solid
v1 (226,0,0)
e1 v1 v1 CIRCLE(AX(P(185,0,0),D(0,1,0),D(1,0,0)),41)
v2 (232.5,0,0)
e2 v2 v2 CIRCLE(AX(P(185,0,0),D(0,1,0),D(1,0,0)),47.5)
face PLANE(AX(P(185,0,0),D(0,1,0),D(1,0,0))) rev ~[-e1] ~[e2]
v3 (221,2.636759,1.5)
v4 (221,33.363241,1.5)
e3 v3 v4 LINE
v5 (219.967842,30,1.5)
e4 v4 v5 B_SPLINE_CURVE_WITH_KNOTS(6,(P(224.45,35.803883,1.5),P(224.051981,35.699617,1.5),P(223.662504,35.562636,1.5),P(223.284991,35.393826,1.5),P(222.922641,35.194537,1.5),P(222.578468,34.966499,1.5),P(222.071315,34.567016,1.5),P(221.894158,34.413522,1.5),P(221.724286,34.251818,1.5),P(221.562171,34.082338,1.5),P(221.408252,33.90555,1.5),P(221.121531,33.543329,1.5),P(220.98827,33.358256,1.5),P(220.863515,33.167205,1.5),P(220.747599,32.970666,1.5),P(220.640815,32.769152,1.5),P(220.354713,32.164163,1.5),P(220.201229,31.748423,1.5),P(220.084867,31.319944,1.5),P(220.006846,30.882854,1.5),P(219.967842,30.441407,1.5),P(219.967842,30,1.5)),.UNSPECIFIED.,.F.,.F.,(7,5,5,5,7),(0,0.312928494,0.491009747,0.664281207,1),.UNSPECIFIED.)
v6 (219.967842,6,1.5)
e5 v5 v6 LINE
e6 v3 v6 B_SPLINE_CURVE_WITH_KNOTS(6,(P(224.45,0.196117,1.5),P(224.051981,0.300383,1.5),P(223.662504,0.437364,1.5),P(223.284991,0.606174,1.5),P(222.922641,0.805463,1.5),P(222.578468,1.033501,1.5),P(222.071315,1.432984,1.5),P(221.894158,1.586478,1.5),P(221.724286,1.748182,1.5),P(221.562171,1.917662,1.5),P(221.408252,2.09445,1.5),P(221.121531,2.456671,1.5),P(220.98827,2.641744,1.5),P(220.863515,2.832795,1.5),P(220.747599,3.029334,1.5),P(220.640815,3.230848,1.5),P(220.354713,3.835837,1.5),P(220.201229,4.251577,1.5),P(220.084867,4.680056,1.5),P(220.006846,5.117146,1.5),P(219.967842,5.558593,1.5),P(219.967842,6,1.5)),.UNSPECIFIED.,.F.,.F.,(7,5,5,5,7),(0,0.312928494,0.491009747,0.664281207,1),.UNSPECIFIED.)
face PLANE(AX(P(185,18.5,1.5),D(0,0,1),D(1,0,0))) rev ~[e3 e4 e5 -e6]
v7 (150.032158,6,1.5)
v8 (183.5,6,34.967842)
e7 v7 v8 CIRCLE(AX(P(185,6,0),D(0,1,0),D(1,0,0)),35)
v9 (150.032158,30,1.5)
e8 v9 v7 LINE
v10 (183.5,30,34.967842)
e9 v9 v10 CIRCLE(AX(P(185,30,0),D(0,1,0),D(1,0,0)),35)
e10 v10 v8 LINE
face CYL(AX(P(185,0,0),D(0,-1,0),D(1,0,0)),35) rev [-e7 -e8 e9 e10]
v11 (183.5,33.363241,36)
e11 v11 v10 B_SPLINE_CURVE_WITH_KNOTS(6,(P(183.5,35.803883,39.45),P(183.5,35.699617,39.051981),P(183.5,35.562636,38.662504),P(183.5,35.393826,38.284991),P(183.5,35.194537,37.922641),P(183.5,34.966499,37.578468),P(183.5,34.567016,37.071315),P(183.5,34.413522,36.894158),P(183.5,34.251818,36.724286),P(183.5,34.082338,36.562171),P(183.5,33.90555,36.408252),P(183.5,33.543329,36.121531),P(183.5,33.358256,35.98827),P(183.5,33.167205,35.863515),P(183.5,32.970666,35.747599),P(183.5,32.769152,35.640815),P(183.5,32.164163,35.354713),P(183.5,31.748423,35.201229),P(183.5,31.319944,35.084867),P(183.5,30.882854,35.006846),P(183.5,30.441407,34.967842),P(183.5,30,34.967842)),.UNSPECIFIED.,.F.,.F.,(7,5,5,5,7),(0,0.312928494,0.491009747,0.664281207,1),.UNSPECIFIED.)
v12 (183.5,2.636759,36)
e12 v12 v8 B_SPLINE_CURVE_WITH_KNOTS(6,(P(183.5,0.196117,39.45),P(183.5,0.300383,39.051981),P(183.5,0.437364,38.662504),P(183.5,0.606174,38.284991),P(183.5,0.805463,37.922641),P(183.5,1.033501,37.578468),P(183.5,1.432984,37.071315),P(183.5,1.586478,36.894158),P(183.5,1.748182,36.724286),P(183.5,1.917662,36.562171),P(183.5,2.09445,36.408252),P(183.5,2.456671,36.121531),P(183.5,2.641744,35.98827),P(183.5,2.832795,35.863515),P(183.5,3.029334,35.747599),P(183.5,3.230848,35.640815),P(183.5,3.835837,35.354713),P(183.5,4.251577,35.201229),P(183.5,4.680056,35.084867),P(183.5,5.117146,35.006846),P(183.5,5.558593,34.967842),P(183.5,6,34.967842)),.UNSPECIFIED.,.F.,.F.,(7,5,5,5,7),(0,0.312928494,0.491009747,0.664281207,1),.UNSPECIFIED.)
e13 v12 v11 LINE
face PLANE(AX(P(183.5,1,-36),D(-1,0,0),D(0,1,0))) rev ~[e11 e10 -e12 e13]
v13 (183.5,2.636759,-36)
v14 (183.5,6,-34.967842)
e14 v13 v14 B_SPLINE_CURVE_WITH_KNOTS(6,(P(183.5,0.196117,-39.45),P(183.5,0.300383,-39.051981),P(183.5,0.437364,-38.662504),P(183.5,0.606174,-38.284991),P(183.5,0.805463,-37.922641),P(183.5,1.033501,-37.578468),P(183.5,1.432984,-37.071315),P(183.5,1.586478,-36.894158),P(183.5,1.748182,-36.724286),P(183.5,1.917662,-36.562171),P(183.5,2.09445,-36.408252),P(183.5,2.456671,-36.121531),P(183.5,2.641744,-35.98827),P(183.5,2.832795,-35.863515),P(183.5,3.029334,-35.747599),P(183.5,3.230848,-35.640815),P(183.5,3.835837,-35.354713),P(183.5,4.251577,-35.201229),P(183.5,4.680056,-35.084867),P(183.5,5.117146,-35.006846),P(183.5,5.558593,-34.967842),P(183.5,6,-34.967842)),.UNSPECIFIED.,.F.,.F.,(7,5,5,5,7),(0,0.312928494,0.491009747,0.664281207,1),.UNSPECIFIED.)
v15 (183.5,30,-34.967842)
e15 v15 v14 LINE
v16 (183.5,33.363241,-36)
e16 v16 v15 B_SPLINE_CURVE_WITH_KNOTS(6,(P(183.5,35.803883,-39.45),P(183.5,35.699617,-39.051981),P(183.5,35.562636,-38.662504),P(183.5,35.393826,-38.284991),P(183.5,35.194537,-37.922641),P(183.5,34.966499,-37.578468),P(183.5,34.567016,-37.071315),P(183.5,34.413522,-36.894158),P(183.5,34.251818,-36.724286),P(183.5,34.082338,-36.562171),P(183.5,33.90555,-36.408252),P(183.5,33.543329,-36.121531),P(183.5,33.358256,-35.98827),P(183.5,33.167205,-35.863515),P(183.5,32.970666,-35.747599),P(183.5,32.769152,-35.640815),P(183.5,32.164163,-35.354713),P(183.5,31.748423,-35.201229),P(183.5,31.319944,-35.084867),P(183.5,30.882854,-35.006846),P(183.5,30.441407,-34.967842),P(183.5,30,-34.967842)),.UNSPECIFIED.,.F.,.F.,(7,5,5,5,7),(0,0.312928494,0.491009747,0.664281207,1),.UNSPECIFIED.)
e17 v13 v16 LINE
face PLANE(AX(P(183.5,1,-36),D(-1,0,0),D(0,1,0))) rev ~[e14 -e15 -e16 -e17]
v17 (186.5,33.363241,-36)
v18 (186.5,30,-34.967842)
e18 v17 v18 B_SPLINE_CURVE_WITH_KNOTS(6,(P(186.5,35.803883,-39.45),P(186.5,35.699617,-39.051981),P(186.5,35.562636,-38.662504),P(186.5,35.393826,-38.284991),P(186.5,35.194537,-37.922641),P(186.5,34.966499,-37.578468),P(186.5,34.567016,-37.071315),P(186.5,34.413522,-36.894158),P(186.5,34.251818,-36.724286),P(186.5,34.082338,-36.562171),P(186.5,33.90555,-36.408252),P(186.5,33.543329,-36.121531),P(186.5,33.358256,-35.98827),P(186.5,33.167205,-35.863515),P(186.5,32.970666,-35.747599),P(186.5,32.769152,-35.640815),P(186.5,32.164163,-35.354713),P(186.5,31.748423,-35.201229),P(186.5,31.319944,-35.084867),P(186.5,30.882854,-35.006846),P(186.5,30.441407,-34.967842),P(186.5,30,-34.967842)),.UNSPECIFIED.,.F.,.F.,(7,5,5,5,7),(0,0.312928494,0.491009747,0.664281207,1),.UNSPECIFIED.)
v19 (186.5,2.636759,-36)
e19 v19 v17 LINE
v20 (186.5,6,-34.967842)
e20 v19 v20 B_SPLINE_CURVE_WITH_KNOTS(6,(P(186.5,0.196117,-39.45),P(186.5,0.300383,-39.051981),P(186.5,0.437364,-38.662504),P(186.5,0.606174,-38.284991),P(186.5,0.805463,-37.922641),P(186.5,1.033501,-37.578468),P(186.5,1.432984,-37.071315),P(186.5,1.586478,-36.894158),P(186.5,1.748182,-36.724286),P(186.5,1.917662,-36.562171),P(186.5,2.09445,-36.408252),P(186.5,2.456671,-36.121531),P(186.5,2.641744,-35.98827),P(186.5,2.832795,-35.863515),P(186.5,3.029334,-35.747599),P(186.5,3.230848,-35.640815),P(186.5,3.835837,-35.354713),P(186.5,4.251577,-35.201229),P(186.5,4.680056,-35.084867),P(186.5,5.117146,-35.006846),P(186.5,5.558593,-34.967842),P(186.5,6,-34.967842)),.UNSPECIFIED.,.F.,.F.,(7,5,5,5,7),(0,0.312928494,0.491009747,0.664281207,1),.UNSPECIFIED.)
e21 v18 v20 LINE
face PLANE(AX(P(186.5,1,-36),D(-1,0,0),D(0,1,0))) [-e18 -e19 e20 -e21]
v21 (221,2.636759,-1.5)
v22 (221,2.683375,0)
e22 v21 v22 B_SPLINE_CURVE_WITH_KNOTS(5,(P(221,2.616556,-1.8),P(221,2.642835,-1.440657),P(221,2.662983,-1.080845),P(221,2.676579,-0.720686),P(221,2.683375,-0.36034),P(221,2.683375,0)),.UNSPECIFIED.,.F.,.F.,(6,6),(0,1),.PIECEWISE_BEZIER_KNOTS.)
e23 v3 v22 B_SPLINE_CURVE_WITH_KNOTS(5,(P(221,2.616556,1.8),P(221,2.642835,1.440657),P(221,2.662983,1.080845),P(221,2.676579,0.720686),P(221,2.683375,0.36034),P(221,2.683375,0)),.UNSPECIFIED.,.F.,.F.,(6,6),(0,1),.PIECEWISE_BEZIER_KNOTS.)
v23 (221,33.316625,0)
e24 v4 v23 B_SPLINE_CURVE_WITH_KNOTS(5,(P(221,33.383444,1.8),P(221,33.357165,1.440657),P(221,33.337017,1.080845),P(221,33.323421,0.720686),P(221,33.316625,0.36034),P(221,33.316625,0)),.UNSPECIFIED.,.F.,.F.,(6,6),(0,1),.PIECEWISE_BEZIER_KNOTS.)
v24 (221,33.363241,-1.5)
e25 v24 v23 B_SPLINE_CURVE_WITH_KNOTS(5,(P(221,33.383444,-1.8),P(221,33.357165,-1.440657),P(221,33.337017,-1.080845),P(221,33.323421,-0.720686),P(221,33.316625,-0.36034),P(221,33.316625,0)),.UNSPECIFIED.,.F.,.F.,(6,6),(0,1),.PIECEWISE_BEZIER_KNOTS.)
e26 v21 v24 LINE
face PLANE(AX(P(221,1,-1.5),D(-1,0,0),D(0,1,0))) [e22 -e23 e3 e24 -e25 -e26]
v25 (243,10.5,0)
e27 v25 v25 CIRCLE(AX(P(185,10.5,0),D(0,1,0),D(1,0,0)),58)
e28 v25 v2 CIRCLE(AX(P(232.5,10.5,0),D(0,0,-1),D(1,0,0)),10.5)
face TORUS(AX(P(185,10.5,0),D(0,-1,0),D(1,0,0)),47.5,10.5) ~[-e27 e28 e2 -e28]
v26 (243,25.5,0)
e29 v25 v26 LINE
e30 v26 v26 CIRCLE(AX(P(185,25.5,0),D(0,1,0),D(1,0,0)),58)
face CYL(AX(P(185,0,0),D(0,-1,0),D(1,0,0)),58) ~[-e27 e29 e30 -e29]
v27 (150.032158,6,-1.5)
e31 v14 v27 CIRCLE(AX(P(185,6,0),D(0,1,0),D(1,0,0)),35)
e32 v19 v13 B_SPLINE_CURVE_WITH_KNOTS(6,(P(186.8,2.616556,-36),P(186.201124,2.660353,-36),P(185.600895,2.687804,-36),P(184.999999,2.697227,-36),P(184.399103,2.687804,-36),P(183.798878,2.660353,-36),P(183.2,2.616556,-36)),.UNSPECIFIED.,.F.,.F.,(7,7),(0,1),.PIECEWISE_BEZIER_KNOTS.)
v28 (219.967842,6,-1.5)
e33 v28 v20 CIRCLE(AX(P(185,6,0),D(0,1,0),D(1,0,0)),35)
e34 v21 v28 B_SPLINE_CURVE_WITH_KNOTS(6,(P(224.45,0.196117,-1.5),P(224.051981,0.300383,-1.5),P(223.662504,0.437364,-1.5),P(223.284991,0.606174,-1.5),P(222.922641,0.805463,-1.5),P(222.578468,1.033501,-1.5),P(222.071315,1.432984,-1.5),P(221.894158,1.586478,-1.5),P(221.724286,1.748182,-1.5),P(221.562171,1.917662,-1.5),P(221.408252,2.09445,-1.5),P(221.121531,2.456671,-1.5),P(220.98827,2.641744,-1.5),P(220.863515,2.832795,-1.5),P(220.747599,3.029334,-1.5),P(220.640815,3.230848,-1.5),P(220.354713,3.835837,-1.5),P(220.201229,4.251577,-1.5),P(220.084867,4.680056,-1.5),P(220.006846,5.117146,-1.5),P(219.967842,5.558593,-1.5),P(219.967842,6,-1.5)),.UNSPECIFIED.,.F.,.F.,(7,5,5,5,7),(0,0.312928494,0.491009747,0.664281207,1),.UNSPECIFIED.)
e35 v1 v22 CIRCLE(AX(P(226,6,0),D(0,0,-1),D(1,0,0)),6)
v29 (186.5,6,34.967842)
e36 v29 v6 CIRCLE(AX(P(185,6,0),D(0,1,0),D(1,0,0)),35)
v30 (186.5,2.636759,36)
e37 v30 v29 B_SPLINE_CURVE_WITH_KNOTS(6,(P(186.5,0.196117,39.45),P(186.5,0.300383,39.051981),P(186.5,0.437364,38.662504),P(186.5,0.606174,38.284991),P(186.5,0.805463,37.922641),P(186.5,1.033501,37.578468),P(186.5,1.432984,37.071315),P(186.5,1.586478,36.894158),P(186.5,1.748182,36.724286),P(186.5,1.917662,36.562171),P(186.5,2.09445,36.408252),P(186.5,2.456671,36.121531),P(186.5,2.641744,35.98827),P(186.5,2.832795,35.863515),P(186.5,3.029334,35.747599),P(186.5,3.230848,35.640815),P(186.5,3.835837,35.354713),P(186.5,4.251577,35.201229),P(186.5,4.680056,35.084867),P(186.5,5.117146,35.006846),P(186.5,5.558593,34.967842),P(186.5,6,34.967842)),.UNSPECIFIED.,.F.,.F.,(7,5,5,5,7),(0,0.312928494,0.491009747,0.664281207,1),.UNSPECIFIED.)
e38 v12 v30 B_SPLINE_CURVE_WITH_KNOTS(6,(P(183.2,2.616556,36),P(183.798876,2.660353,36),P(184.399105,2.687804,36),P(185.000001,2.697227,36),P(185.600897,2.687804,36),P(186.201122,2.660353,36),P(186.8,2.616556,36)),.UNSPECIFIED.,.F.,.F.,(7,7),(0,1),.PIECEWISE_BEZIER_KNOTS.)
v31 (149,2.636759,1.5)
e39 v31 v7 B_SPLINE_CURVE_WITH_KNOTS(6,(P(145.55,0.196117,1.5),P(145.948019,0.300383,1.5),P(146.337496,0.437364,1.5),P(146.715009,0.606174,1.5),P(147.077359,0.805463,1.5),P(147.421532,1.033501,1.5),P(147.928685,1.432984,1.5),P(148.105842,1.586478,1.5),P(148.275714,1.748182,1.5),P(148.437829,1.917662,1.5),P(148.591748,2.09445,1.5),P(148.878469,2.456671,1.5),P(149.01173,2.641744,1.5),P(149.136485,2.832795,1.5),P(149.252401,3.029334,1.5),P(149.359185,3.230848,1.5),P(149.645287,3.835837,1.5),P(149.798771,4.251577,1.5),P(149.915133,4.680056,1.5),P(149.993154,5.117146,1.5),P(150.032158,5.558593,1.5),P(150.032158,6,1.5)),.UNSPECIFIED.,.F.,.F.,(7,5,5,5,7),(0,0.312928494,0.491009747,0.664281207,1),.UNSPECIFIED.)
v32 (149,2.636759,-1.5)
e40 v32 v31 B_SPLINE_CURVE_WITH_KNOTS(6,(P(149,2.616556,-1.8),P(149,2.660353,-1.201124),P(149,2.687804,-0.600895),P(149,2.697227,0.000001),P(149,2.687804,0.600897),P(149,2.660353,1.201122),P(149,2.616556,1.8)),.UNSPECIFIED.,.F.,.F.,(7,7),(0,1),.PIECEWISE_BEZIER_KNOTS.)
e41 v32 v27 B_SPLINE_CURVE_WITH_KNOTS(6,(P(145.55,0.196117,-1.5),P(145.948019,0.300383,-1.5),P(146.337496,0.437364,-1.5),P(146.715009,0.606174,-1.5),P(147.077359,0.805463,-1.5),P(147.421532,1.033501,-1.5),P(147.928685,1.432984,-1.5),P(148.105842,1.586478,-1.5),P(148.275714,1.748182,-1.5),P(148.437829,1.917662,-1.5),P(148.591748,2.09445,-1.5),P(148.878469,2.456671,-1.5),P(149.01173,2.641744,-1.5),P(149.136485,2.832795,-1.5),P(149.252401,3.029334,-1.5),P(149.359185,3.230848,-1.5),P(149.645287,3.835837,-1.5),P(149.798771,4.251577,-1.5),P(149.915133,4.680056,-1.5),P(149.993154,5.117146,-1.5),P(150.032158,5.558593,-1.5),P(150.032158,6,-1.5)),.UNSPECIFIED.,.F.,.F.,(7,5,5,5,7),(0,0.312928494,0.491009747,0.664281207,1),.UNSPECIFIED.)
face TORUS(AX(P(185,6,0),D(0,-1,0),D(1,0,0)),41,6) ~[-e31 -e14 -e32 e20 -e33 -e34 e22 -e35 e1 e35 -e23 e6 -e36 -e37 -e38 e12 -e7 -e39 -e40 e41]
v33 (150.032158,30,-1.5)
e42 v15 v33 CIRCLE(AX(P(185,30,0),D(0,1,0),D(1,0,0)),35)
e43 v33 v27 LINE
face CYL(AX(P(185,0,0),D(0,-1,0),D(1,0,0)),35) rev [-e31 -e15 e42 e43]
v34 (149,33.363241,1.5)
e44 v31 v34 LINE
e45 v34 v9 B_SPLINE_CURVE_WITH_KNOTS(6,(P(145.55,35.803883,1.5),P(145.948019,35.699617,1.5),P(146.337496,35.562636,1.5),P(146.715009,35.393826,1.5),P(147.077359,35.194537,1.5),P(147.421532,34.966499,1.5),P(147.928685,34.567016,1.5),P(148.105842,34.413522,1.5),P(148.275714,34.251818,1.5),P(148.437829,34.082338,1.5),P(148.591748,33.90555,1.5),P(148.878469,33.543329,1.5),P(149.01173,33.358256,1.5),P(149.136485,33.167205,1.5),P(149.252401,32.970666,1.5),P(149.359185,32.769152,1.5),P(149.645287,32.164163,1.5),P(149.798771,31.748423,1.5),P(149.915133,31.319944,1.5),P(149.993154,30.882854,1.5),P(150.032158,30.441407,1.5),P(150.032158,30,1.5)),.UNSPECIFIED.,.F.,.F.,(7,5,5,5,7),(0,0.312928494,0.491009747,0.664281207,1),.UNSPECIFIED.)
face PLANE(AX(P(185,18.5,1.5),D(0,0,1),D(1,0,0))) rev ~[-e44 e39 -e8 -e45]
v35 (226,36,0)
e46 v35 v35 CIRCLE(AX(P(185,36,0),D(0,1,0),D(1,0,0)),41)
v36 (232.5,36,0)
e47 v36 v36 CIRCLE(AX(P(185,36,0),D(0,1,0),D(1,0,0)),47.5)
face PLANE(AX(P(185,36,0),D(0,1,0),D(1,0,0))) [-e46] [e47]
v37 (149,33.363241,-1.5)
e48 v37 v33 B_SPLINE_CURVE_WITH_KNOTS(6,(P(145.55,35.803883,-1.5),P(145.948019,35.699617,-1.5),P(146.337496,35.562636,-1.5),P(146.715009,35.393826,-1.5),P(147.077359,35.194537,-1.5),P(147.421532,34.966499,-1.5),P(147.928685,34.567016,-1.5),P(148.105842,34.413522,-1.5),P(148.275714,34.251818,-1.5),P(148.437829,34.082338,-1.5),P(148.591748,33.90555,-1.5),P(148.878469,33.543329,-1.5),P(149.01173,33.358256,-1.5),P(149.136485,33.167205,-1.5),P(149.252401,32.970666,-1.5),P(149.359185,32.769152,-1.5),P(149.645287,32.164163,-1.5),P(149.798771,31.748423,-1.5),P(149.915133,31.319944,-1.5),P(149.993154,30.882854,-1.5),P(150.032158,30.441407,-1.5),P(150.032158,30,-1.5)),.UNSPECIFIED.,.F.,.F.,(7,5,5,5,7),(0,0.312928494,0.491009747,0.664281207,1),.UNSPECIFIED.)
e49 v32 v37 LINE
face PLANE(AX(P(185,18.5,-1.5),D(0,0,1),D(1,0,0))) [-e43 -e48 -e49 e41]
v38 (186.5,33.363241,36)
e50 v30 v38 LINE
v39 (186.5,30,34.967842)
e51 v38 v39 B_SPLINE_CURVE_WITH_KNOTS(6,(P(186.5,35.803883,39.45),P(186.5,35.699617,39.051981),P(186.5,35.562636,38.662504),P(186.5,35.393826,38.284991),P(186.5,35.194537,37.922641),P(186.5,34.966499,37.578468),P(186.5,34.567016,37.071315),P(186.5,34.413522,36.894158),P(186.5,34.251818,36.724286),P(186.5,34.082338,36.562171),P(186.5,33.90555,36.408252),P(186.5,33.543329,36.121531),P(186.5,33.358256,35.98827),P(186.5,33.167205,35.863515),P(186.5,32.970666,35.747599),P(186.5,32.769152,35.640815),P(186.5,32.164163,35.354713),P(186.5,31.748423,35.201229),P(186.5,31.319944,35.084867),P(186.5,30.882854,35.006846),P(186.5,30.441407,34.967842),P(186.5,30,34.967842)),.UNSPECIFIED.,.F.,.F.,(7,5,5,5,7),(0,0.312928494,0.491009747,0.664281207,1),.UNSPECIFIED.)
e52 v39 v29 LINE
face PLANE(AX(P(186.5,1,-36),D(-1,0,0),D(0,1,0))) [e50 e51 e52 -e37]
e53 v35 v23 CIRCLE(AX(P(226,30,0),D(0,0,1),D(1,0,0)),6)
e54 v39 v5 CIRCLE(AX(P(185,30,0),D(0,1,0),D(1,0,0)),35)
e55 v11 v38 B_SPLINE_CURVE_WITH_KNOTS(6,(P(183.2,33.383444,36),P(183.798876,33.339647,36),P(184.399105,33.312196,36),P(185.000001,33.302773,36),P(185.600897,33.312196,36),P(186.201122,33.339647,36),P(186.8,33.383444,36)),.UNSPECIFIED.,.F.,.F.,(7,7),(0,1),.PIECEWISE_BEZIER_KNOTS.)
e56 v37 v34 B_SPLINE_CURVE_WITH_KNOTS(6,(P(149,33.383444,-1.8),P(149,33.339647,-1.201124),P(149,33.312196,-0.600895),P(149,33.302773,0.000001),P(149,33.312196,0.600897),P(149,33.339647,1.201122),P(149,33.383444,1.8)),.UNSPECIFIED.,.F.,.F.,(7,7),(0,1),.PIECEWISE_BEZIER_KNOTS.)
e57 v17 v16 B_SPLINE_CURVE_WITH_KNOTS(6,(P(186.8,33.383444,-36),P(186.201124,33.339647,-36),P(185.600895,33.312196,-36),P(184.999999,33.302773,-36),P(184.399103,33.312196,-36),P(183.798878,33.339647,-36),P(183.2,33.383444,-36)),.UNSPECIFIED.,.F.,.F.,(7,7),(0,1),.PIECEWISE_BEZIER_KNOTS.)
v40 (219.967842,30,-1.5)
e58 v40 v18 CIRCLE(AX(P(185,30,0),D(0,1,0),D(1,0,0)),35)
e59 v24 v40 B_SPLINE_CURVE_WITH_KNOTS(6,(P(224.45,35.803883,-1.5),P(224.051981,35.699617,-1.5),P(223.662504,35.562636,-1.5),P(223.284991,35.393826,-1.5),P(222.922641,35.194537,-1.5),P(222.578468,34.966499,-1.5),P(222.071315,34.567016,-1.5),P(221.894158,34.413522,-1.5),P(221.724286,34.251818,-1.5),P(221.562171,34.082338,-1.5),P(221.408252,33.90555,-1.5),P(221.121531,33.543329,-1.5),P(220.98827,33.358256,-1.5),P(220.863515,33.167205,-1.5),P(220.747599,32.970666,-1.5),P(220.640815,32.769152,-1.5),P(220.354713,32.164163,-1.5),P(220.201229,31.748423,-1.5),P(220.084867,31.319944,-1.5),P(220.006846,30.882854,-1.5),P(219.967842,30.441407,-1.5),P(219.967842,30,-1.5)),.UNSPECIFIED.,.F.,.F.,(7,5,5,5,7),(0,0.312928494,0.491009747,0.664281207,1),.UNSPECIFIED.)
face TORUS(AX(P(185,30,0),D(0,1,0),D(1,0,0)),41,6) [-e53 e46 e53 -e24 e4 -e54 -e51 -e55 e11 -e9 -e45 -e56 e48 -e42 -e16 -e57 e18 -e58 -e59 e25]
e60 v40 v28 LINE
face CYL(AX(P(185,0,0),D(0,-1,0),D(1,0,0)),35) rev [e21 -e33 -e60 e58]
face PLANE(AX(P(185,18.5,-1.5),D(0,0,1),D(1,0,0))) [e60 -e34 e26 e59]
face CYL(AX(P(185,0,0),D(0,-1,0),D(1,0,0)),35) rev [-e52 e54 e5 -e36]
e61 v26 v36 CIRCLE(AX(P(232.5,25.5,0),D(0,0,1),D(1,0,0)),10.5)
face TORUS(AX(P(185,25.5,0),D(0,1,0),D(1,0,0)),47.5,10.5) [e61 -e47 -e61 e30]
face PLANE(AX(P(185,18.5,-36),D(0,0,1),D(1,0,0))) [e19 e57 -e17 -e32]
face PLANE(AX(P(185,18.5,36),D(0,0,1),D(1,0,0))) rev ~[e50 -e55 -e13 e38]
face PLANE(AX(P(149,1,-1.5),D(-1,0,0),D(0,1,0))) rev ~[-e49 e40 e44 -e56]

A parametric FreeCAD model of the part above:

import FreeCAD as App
import Part
import Sketcher

V = App.Vector


def edges_at(feature, points):
    """Names of the edges that pass closest to the given points."""
    edges = feature.Shape.Edges
    near = lambda p: min(range(len(edges)), key=lambda i: edges[i].distToShape(Part.Vertex(*p))[0])
    return sorted({f"Edge{near(p) + 1}" for p in points})


def add_polygon(sketch, points):
    """Adds a closed chain of lines whose ends are joined by coincident constraints."""
    first, n = sketch.GeometryCount, len(points)
    for a, b in zip(points, points[1:] + points[:1]):
        sketch.addGeometry(Part.LineSegment(App.Vector(*a, 0), App.Vector(*b, 0)), False)
    for i in range(n):
        sketch.addConstraint(Sketcher.Constraint("Coincident", first + i, 2, first + (i + 1) % n, 1))

doc = App.newDocument("Part")
body = doc.addObject("PartDesign::Body", "Body")

sketch1 = doc.addObject("Sketcher::SketchObject", "Sketch")
body.addObject(sketch1)
sketch1.AttachmentSupport = (doc.XY_Plane, [""])
sketch1.MapMode = "FlatFace"
sketch1.AttachmentOffset = App.Placement(V(0, 0, -1.5), App.Rotation())
add_polygon(sketch1, [(-36, 36), (-36, 1), (36, 1), (36, 36)])
sketch1.addConstraint(Sketcher.Constraint("Vertical", 0))
sketch1.addConstraint(Sketcher.Constraint("Horizontal", 1))
sketch1.addConstraint(Sketcher.Constraint("Vertical", 2))
sketch1.addConstraint(Sketcher.Constraint("Horizontal", 3))
sketch1.addConstraint(Sketcher.Constraint("DistanceX", 1, 1, 1, 2, 72.0))
sketch1.addConstraint(Sketcher.Constraint("DistanceY", 0, 2, 0, 1, 35.0))
sketch1.addConstraint(Sketcher.Constraint("DistanceX", 0, 2, -1, 1, 36.0))
sketch1.addConstraint(Sketcher.Constraint("DistanceY", -1, 1, 0, 2, 1.0))
pad1 = doc.addObject("PartDesign::Pad", "Pad")
body.addObject(pad1)
pad1.Profile = sketch1
pad1.Length = 3
body2 = doc.addObject("PartDesign::Body", "Body001")

sketch2 = doc.addObject("Sketcher::SketchObject", "Sketch001")
body2.addObject(sketch2)
sketch2.AttachmentSupport = (doc.getObject("XY_Plane001"), [""])
sketch2.MapMode = "FlatFace"
sketch2.AttachmentOffset = App.Placement(V(0, 0, -36), App.Rotation())
add_polygon(sketch2, [(-1.5, 36), (-1.5, 1), (1.5, 1), (1.5, 36)])
sketch2.addConstraint(Sketcher.Constraint("Vertical", 0))
sketch2.addConstraint(Sketcher.Constraint("Horizontal", 1))
sketch2.addConstraint(Sketcher.Constraint("Vertical", 2))
sketch2.addConstraint(Sketcher.Constraint("Horizontal", 3))
sketch2.addConstraint(Sketcher.Constraint("DistanceX", 1, 1, 1, 2, 3.0))
sketch2.addConstraint(Sketcher.Constraint("DistanceY", 0, 2, 0, 1, 35.0))
sketch2.addConstraint(Sketcher.Constraint("DistanceY", -1, 1, 0, 2, 1.0))
sketch2.addConstraint(Sketcher.Constraint("DistanceX", 0, 2, -1, 1, 1.5))
pad2 = doc.addObject("PartDesign::Pad", "Pad001")
body2.addObject(pad2)
pad2.Profile = sketch2
pad2.Length = 72
doc.recompute()

boolean = doc.addObject("PartDesign::Boolean", "Boolean")
body2.addObject(boolean)
boolean.Type = "Fuse"
boolean.addObjects([body])
body3 = doc.addObject("PartDesign::Body", "Body002")

sketch3 = doc.addObject("Sketcher::SketchObject", "Sketch002")
body3.addObject(sketch3)
sketch3.AttachmentSupport = (doc.getObject("XZ_Plane002"), [""])
sketch3.MapMode = "FlatFace"
sketch3.addGeometry(Part.Circle(V(0, 0, 0), V(0, 0, 1), 35), False)
sketch3.addConstraint(Sketcher.Constraint("Coincident", 0, 3, -1, 1))
sketch3.addConstraint(Sketcher.Constraint("Diameter", 0, 70.0))
pad3 = doc.addObject("PartDesign::Pad", "Pad002")
body3.addObject(pad3)
pad3.Profile = sketch3
pad3.Length = 36
pad3.Reversed = True
body4 = doc.addObject("PartDesign::Body", "Body003")

sketch4 = doc.addObject("Sketcher::SketchObject", "Sketch003")
body4.addObject(sketch4)
sketch4.AttachmentSupport = (doc.getObject("XZ_Plane003"), [""])
sketch4.MapMode = "FlatFace"
sketch4.addGeometry(Part.Circle(V(0, 0, 0), V(0, 0, 1), 58), False)
sketch4.addConstraint(Sketcher.Constraint("Coincident", 0, 3, -1, 1))
sketch4.addConstraint(Sketcher.Constraint("Diameter", 0, 116.0))
pad4 = doc.addObject("PartDesign::Pad", "Pad003")
body4.addObject(pad4)
pad4.Profile = sketch4
pad4.Length = 36
pad4.Reversed = True
doc.recompute()

fillet = doc.addObject("PartDesign::Fillet", "Fillet")
body4.addObject(fillet)
fillet.Base = (pad4, edges_at(pad4, [(-58, 0, 0), (-58, 36, 0)]))
fillet.Radius = 10.5
doc.recompute()

boolean2 = doc.addObject("PartDesign::Boolean", "Boolean001")
body4.addObject(boolean2)
boolean2.Type = "Cut"
boolean2.addObjects([body3])
doc.recompute()

fillet2 = doc.addObject("PartDesign::Fillet", "Fillet001")
body4.addObject(fillet2)
fillet2.Base = (boolean2, edges_at(boolean2, [(-35, 36, 0), (-35, 0, 0)]))
fillet2.Radius = 6
doc.recompute()

boolean3 = doc.addObject("PartDesign::Boolean", "Boolean002")
body4.addObject(boolean3)
boolean3.Type = "Cut"
boolean3.addObjects([body2])
body5 = doc.addObject("PartDesign::Body", "Body004")
doc.recompute()

body4.Placement = App.Placement(V(185, 0, 0), App.Rotation(V(0, 0, 1), 0))
boolean4 = doc.addObject("PartDesign::Boolean", "Boolean003")
body5.addObject(boolean4)
boolean4.Type = "Fuse"
boolean4.addObjects([body4])

doc.recompute()
